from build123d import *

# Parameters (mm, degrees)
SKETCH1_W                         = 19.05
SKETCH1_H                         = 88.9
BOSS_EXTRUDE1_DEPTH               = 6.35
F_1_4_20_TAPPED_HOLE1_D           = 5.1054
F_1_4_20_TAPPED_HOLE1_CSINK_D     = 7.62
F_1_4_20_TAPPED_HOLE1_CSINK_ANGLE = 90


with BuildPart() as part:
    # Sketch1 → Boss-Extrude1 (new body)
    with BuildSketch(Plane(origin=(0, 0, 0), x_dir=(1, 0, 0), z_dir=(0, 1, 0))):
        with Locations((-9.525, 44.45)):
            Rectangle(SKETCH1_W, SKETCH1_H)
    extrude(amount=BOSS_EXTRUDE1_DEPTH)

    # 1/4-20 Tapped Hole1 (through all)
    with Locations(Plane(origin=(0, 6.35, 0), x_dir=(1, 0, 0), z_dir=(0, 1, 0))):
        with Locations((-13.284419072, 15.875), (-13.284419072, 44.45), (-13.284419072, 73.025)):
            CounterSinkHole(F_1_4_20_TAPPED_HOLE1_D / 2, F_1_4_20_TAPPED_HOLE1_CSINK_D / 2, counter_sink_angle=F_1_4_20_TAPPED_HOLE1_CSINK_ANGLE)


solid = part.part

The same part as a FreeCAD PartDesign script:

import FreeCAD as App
import Part
import Sketcher
Q = App.Units.Quantity

doc = App.newDocument("Part")
body = doc.addObject("PartDesign::Body", "Body")

# Sketch on XZ plane
sketch1 = body.newObject("Sketcher::SketchObject", "Sketch")
sketch1.AttachmentSupport = (doc.getObject("XZ_Plane"), [""])
sketch1.MapMode = "FlatFace"
sketch1.addGeometry(Part.LineSegment(App.Vector(-19, -89, 0), App.Vector(-19, 0, 0)), False)
sketch1.addGeometry(Part.LineSegment(App.Vector(-19, 0, 0), App.Vector(0, 0, 0)), False)
sketch1.addGeometry(Part.LineSegment(App.Vector(0, 0, 0), App.Vector(0, -89, 0)), False)
sketch1.addGeometry(Part.LineSegment(App.Vector(0, -89, 0), App.Vector(-19, -89, 0)), False)
sketch1.addConstraint(Sketcher.Constraint("Coincident", 0, 2, 1, 1))
sketch1.addConstraint(Sketcher.Constraint("Coincident", 1, 2, 2, 1))
sketch1.addConstraint(Sketcher.Constraint("Coincident", 2, 2, 3, 1))
sketch1.addConstraint(Sketcher.Constraint("Coincident", 3, 2, 0, 1))
sketch1.addConstraint(Sketcher.Constraint("Vertical", 0))
sketch1.addConstraint(Sketcher.Constraint("Horizontal", 1))
sketch1.addConstraint(Sketcher.Constraint("Vertical", 2))
sketch1.addConstraint(Sketcher.Constraint("Horizontal", 3))
sketch1.addConstraint(Sketcher.Constraint("Coincident", 1, 2, -1, 1))
sketch1.addConstraint(Sketcher.Constraint("DistanceY", 0, 1, 0, 2, Q("3.5 in")))
sketch1.addConstraint(Sketcher.Constraint("DistanceX", 1, 1, 1, 2, Q("0.75 in")))
pad1 = body.newObject("PartDesign::Pad", "Pad")
pad1.Profile = sketch1
pad1.Length = Q("0.25 in")
pad1.Reversed = True

# Sketch on XZ plane
sketch2 = body.newObject("Sketcher::SketchObject", "Sketch001")
sketch2.AttachmentSupport = (doc.getObject("XZ_Plane"), [""])
sketch2.MapMode = "FlatFace"
sketch2.AttachmentOffset = App.Placement(App.Vector(0, 0, -0.25 * 25.4), App.Rotation())
sketch2.addGeometry(Part.Circle(App.Vector(-13.3, -15.9, 0), App.Vector(0, 0, 1), 2.6), False)
sketch2.addGeometry(Part.Circle(App.Vector(-13.3, -44.5, 0), App.Vector(0, 0, 1), 2.6), False)
sketch2.addGeometry(Part.Circle(App.Vector(-13.3, -73, 0), App.Vector(0, 0, 1), 2.6), False)
sketch2.addConstraint(Sketcher.Constraint("Equal", 0, 1))
sketch2.addConstraint(Sketcher.Constraint("Equal", 1, 2))
sketch2.addConstraint(Sketcher.Constraint("Vertical", 0, 3, 1, 3))
sketch2.addConstraint(Sketcher.Constraint("Vertical", 1, 3, 2, 3))
sketch2.addConstraint(Sketcher.Constraint("Diameter", 0, Q("0.201 in")))
sketch2.addConstraint(Sketcher.Constraint("DistanceY", 1, 3, -1, 1, Q("1.75 in")))
sketch2.addConstraint(Sketcher.Constraint("DistanceY", 2, 3, 0, 3, Q("2.25 in")))
sketch2.addConstraint(Sketcher.Constraint("DistanceY", 0, 3, -1, 1, Q("0.625 in")))
sketch2.addConstraint(Sketcher.Constraint("DistanceX", 0, 3, -1, 1, Q("13.284419 mm")))
doc.recompute()
hole = body.newObject("PartDesign::Hole", "Hole")
hole.Profile = sketch2
hole.ThreadType = "None"
hole.Diameter = Q("0.201 in")
hole.DepthType = "ThroughAll"
hole.HoleCutType = "Countersink"
hole.HoleCutDiameter = Q("0.3 in")
hole.HoleCutCountersinkAngle = 90
hole.Reversed = True

doc.recompute()
